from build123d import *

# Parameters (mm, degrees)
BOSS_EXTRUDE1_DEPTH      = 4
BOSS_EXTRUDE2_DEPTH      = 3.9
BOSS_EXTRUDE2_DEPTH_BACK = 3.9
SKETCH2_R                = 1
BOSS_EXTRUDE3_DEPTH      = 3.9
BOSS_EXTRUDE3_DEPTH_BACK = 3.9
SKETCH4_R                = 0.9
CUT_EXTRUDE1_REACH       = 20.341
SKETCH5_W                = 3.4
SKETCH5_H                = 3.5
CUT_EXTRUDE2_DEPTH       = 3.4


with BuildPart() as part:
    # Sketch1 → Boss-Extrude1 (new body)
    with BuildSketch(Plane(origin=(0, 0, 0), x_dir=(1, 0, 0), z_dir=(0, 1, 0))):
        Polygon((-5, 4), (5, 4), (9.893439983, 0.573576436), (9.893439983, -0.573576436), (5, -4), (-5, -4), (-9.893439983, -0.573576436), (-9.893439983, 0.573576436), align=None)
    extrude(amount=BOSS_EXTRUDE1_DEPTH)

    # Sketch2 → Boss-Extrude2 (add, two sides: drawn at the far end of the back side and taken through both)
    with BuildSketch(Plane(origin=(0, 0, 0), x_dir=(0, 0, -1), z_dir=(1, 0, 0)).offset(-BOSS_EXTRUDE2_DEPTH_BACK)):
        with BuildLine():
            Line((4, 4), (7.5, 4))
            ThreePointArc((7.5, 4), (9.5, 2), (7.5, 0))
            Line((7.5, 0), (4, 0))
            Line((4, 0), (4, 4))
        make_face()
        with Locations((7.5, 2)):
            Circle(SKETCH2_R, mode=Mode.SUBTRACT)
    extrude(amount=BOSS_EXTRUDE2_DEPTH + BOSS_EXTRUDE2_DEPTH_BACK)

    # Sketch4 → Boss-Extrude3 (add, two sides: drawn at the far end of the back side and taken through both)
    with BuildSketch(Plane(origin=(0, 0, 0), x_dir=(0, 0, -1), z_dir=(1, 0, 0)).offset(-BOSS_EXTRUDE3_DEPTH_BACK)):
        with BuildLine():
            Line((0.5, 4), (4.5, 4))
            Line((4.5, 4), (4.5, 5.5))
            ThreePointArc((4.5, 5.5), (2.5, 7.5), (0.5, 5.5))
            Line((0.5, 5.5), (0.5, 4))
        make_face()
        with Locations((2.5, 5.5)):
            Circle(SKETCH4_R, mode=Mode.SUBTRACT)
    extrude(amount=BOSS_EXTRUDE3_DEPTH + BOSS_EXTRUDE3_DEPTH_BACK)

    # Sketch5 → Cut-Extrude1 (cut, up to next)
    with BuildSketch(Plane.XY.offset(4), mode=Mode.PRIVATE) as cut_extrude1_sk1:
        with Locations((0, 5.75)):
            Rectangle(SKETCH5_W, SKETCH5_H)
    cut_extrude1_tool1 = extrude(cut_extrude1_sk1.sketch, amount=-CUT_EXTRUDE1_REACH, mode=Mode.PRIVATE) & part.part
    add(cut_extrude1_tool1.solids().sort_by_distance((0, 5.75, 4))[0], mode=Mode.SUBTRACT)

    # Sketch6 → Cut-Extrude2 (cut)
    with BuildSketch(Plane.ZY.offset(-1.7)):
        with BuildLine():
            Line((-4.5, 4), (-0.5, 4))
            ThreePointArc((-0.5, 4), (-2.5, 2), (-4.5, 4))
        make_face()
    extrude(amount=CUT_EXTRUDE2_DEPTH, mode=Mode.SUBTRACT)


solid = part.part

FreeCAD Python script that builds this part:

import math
import FreeCAD as App
import Part
import Sketcher

V = App.Vector
Q = App.Units.Quantity


def add_polygon(sketch, points):
    """Adds a closed chain of lines whose ends are joined by coincident constraints."""
    first, n = sketch.GeometryCount, len(points)
    for a, b in zip(points, points[1:] + points[:1]):
        sketch.addGeometry(Part.LineSegment(App.Vector(*a, 0), App.Vector(*b, 0)), False)
    for i in range(n):
        sketch.addConstraint(Sketcher.Constraint("Coincident", first + i, 2, first + (i + 1) % n, 1))

doc = App.newDocument("Part")
body = doc.addObject("PartDesign::Body", "Body")

sketch1 = body.newObject("Sketcher::SketchObject", "Sketch")
sketch1.AttachmentSupport = (doc.getObject("XZ_Plane"), [""])
sketch1.MapMode = "FlatFace"
add_polygon(sketch1, [(5, -4), (-5, -4), (-9.9, -0.6), (-9.9, 0.6), (-5, 4), (5, 4), (9.9, 0.6), (9.9, -0.6)])
sketch1.addConstraint(Sketcher.Constraint("Horizontal", 0))
sketch1.addConstraint(Sketcher.Constraint("Vertical", 2))
sketch1.addConstraint(Sketcher.Constraint("Horizontal", 4))
sketch1.addConstraint(Sketcher.Constraint("Vertical", 6))
sketch1.addConstraint(Sketcher.Constraint("Symmetric", 0, 2, 4, 2, -1, 1))
sketch1.addConstraint(Sketcher.Constraint("Symmetric", 1, 2, 5, 2, -1, 1))
sketch1.addConstraint(Sketcher.Constraint("Parallel", 3, 7))
sketch1.addConstraint(Sketcher.Constraint("Horizontal", 2, 2, 5, 2))
sketch1.addConstraint(Sketcher.Constraint("Horizontal", 1, 2, 6, 2))
sketch1.addConstraint(Sketcher.Constraint("Vertical", 0, 2, 3, 2))
sketch1.addConstraint(Sketcher.Constraint("DistanceX", 0, 2, 0, 1, Q("10 mm")))
sketch1.addConstraint(Sketcher.Constraint("Angle", 1, Q("145 deg")))
sketch1.addConstraint(Sketcher.Constraint("DistanceY", 0, 2, -1, 1, Q("4 mm")))
sketch1.addConstraint(Sketcher.Constraint("DistanceY", 2, 1, 2, 2, Q("1.147153 mm")))
pad1 = body.newObject("PartDesign::Pad", "Pad")
pad1.Profile = sketch1
pad1.Length = 4
pad1.Reversed = True

sketch2 = body.newObject("Sketcher::SketchObject", "Sketch001")
sketch2.AttachmentSupport = (doc.getObject("YZ_Plane"), [""])
sketch2.MapMode = "FlatFace"
sketch2.addGeometry(Part.LineSegment(V(4, -7.5, 0), V(4, -4, 0)), False)
sketch2.addGeometry(Part.LineSegment(V(4, -4, 0), V(0, -4, 0)), False)
sketch2.addGeometry(Part.LineSegment(V(0, -4, 0), V(0, -7.5, 0)), False)
sketch2.addGeometry(Part.ArcOfCircle(Part.Circle(V(2, -7.5, 0), V(0, 0, 1), 2), math.radians(180), math.radians(360)), False)
sketch2.addGeometry(Part.Circle(V(2, -7.5, 0), V(0, 0, 1), 1), False)
sketch2.addConstraint(Sketcher.Constraint("Coincident", 0, 2, 1, 1))
sketch2.addConstraint(Sketcher.Constraint("Coincident", 1, 2, 2, 1))
sketch2.addConstraint(Sketcher.Constraint("Tangent", 2, 2, 3, 1))
sketch2.addConstraint(Sketcher.Constraint("Tangent", 3, 2, 0, 1))
sketch2.addConstraint(Sketcher.Constraint("Vertical", 0))
sketch2.addConstraint(Sketcher.Constraint("Horizontal", 1))
sketch2.addConstraint(Sketcher.Constraint("Vertical", 2))
sketch2.addConstraint(Sketcher.Constraint("Coincident", 4, 3, 3, 3))
sketch2.addConstraint(Sketcher.Constraint("PointOnObject", 1, 2, -2))
sketch2.addConstraint(Sketcher.Constraint("Diameter", 4, Q("2 mm")))
sketch2.addConstraint(Sketcher.Constraint("Radius", 3, Q("2 mm")))
sketch2.addConstraint(Sketcher.Constraint("DistanceY", 0, 1, 0, 2, Q("3.5 mm")))
sketch2.addConstraint(Sketcher.Constraint("DistanceY", 0, 2, -1, 1, Q("4 mm")))
pad2 = body.newObject("PartDesign::Pad", "Pad001")
pad2.Profile = sketch2
pad2.Type = "TwoLengths"
pad2.Length = 3.9
pad2.Length2 = 3.9

sketch3 = body.newObject("Sketcher::SketchObject", "Sketch002")
sketch3.AttachmentSupport = (doc.getObject("YZ_Plane"), [""])
sketch3.MapMode = "FlatFace"
sketch3.addGeometry(Part.LineSegment(V(4, -0.5, 0), V(4, -4.5, 0)), False)
sketch3.addGeometry(Part.LineSegment(V(4, -4.5, 0), V(5.5, -4.5, 0)), False)
sketch3.addGeometry(Part.ArcOfCircle(Part.Circle(V(5.5, -2.5, 0), V(0, 0, 1), 2), math.radians(-90), math.radians(90)), False)
sketch3.addGeometry(Part.LineSegment(V(5.5, -0.5, 0), V(4, -0.5, 0)), False)
sketch3.addGeometry(Part.Circle(V(5.5, -2.5, 0), V(0, 0, 1), 0.9), False)
sketch3.addConstraint(Sketcher.Constraint("Coincident", 0, 2, 1, 1))
sketch3.addConstraint(Sketcher.Constraint("Tangent", 1, 2, 2, 1))
sketch3.addConstraint(Sketcher.Constraint("Tangent", 2, 2, 3, 1))
sketch3.addConstraint(Sketcher.Constraint("Coincident", 3, 2, 0, 1))
sketch3.addConstraint(Sketcher.Constraint("Vertical", 0))
sketch3.addConstraint(Sketcher.Constraint("Horizontal", 1))
sketch3.addConstraint(Sketcher.Constraint("Horizontal", 3))
sketch3.addConstraint(Sketcher.Constraint("Coincident", 4, 3, 2, 3))
sketch3.addConstraint(Sketcher.Constraint("Radius", 2, Q("2 mm")))
sketch3.addConstraint(Sketcher.Constraint("Diameter", 4, Q("1.8 mm")))
sketch3.addConstraint(Sketcher.Constraint("DistanceX", 1, 1, 1, 2, Q("1.5 mm")))
sketch3.addConstraint(Sketcher.Constraint("DistanceX", -1, 1, 0, 2, Q("4 mm")))
sketch3.addConstraint(Sketcher.Constraint("DistanceY", 2, 3, -1, 1, Q("2.5 mm")))
pad3 = body.newObject("PartDesign::Pad", "Pad002")
pad3.Profile = sketch3
pad3.Type = "TwoLengths"
pad3.Length = 3.9
pad3.Length2 = 3.9

sketch4 = body.newObject("Sketcher::SketchObject", "Sketch003")
sketch4.AttachmentSupport = (doc.getObject("XY_Plane"), [""])
sketch4.MapMode = "FlatFace"
sketch4.AttachmentOffset = App.Placement(V(0, 0, 4), App.Rotation())
add_polygon(sketch4, [(-1.7, 7.5), (-1.7, 4), (1.7, 4), (1.7, 7.5)])
sketch4.addConstraint(Sketcher.Constraint("Vertical", 0))
sketch4.addConstraint(Sketcher.Constraint("Horizontal", 1))
sketch4.addConstraint(Sketcher.Constraint("Vertical", 2))
sketch4.addConstraint(Sketcher.Constraint("Horizontal", 3))
sketch4.addConstraint(Sketcher.Constraint("DistanceX", 1, 1, 1, 2, Q("3.4 mm")))
sketch4.addConstraint(Sketcher.Constraint("DistanceY", 0, 2, 0, 1, Q("3.5 mm")))
sketch4.addConstraint(Sketcher.Constraint("DistanceY", -1, 1, 0, 2, Q("4 mm")))
sketch4.addConstraint(Sketcher.Constraint("DistanceX", 0, 2, -1, 1, Q("1.7 mm")))
pocket1 = body.newObject("PartDesign::Pocket", "Pocket")
pocket1.Profile = sketch4
pocket1.Length = 8.5

sketch5 = body.newObject("Sketcher::SketchObject", "Sketch004")
sketch5.AttachmentSupport = (doc.getObject("YZ_Plane"), [""])
sketch5.MapMode = "FlatFace"
sketch5.AttachmentOffset = App.Placement(V(0, 0, 1.7), App.Rotation())
sketch5.addGeometry(Part.LineSegment(V(4, -0.5, 0), V(4, -4.5, 0)), False)
sketch5.addGeometry(Part.ArcOfCircle(Part.Circle(V(4, -2.5, 0), V(0, 0, 1), 2), math.radians(90), math.radians(270)), False)
sketch5.addConstraint(Sketcher.Constraint("Coincident", 0, 1, 1, 1))
sketch5.addConstraint(Sketcher.Constraint("Coincident", 1, 2, 0, 2))
sketch5.addConstraint(Sketcher.Constraint("Vertical", 0))
sketch5.addConstraint(Sketcher.Constraint("Vertical", 1, 3, 0, 1))
sketch5.addConstraint(Sketcher.Constraint("Radius", 1, Q("2 mm")))
sketch5.addConstraint(Sketcher.Constraint("DistanceX", -1, 1, 1, 3, Q("4 mm")))
sketch5.addConstraint(Sketcher.Constraint("DistanceY", 1, 3, -1, 1, Q("2.5 mm")))
pocket2 = body.newObject("PartDesign::Pocket", "Pocket001")
pocket2.Profile = sketch5
pocket2.Length = 3.4

doc.recompute()
